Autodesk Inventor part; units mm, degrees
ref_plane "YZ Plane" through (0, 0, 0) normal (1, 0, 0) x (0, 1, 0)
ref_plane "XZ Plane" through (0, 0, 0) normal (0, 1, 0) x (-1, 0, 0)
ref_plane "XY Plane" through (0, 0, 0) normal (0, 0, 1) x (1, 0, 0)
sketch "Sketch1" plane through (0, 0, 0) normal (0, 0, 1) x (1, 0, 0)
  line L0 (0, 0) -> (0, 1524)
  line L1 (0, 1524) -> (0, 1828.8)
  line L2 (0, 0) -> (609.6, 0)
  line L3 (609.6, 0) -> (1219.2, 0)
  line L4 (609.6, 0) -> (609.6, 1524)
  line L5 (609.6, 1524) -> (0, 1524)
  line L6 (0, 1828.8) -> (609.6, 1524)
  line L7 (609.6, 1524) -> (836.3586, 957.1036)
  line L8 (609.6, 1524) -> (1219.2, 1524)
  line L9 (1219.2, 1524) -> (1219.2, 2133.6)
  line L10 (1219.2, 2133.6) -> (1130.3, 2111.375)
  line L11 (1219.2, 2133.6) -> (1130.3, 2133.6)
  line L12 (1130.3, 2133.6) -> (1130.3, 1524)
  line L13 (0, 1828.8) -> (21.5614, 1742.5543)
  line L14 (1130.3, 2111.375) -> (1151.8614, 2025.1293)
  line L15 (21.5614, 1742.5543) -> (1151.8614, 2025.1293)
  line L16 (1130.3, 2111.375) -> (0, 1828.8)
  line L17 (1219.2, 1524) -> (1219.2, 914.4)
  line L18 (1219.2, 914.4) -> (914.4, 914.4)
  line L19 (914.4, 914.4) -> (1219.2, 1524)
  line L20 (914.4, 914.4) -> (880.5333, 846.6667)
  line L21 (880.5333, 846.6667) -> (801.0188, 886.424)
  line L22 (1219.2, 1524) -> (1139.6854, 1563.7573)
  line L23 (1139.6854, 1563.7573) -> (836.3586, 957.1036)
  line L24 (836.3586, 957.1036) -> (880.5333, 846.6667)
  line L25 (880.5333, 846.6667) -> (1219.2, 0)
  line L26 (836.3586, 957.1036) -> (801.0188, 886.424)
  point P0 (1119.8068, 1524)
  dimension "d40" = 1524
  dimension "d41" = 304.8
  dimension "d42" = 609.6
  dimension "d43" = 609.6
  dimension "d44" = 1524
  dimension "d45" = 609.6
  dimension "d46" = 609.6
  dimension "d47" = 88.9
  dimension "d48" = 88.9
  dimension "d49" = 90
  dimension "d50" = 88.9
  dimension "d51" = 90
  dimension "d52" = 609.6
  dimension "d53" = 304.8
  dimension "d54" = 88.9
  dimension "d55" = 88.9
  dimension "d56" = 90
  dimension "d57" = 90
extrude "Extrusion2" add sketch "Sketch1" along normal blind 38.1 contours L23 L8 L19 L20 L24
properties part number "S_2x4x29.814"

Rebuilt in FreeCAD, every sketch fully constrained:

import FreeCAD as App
import Part
import Sketcher

V = App.Vector
Q = App.Units.Quantity


def add_polygon(sketch, points):
    """Adds a closed chain of lines whose ends are joined by coincident constraints."""
    first, n = sketch.GeometryCount, len(points)
    for a, b in zip(points, points[1:] + points[:1]):
        sketch.addGeometry(Part.LineSegment(App.Vector(*a, 0), App.Vector(*b, 0)), False)
    for i in range(n):
        sketch.addConstraint(Sketcher.Constraint("Coincident", first + i, 2, first + (i + 1) % n, 1))

doc = App.newDocument("Part")
params = doc.addObject("Spreadsheet::Sheet", "Params")
for row, (alias, value) in enumerate([
    ("sketch1_length", "24.953126 in"),
    ("pad1_length", "1.5 in"),
], start=1):
    params.set(f"A{row}", alias)
    params.set(f"B{row}", "=" + value)
    params.setAlias(f"B{row}", alias)

body = doc.addObject("PartDesign::Body", "Body")

sketch1 = body.newObject("Sketcher::SketchObject", "Sketch")
sketch1.AttachmentSupport = (doc.getObject("XY_Plane"), [""])
sketch1.MapMode = "FlatFace"
add_polygon(sketch1, [(1120, 1524), (836, 957), (881, 847), (914, 914), (1219, 1524)])
sketch1.addConstraint([
    Sketcher.Constraint("Horizontal", 4),
    Sketcher.Constraint("Parallel", 0, 2),
    Sketcher.Constraint("Parallel", 2, 3),
    Sketcher.Constraint("DistanceY", -1, 1, 3, 2, Q("60 in")),
    Sketcher.Constraint("DistanceX", 2, 2, 3, 2, Q("12 in")),
    Sketcher.Constraint("DistanceY", 2, 2, 3, 2, Q("24 in")),
    Sketcher.Constraint("DistanceX", -1, 1, 2, 2, Q("36 in")),
    Sketcher.Constraint("Distance", 0, Q("24.953126 in")),
    Sketcher.Constraint("DistanceX", 4, 2, 4, 1, 99.3932),
    Sketcher.Constraint("DistanceY", 1, 2, 0, 2, Q("4.3479 in")),
])
sketch1.setExpression("Constraints[12]", "Params.sketch1_length")
pad1 = body.newObject("PartDesign::Pad", "Pad")
pad1.Profile = sketch1
pad1.setExpression("Length", "Params.pad1_length")

doc.recompute()
